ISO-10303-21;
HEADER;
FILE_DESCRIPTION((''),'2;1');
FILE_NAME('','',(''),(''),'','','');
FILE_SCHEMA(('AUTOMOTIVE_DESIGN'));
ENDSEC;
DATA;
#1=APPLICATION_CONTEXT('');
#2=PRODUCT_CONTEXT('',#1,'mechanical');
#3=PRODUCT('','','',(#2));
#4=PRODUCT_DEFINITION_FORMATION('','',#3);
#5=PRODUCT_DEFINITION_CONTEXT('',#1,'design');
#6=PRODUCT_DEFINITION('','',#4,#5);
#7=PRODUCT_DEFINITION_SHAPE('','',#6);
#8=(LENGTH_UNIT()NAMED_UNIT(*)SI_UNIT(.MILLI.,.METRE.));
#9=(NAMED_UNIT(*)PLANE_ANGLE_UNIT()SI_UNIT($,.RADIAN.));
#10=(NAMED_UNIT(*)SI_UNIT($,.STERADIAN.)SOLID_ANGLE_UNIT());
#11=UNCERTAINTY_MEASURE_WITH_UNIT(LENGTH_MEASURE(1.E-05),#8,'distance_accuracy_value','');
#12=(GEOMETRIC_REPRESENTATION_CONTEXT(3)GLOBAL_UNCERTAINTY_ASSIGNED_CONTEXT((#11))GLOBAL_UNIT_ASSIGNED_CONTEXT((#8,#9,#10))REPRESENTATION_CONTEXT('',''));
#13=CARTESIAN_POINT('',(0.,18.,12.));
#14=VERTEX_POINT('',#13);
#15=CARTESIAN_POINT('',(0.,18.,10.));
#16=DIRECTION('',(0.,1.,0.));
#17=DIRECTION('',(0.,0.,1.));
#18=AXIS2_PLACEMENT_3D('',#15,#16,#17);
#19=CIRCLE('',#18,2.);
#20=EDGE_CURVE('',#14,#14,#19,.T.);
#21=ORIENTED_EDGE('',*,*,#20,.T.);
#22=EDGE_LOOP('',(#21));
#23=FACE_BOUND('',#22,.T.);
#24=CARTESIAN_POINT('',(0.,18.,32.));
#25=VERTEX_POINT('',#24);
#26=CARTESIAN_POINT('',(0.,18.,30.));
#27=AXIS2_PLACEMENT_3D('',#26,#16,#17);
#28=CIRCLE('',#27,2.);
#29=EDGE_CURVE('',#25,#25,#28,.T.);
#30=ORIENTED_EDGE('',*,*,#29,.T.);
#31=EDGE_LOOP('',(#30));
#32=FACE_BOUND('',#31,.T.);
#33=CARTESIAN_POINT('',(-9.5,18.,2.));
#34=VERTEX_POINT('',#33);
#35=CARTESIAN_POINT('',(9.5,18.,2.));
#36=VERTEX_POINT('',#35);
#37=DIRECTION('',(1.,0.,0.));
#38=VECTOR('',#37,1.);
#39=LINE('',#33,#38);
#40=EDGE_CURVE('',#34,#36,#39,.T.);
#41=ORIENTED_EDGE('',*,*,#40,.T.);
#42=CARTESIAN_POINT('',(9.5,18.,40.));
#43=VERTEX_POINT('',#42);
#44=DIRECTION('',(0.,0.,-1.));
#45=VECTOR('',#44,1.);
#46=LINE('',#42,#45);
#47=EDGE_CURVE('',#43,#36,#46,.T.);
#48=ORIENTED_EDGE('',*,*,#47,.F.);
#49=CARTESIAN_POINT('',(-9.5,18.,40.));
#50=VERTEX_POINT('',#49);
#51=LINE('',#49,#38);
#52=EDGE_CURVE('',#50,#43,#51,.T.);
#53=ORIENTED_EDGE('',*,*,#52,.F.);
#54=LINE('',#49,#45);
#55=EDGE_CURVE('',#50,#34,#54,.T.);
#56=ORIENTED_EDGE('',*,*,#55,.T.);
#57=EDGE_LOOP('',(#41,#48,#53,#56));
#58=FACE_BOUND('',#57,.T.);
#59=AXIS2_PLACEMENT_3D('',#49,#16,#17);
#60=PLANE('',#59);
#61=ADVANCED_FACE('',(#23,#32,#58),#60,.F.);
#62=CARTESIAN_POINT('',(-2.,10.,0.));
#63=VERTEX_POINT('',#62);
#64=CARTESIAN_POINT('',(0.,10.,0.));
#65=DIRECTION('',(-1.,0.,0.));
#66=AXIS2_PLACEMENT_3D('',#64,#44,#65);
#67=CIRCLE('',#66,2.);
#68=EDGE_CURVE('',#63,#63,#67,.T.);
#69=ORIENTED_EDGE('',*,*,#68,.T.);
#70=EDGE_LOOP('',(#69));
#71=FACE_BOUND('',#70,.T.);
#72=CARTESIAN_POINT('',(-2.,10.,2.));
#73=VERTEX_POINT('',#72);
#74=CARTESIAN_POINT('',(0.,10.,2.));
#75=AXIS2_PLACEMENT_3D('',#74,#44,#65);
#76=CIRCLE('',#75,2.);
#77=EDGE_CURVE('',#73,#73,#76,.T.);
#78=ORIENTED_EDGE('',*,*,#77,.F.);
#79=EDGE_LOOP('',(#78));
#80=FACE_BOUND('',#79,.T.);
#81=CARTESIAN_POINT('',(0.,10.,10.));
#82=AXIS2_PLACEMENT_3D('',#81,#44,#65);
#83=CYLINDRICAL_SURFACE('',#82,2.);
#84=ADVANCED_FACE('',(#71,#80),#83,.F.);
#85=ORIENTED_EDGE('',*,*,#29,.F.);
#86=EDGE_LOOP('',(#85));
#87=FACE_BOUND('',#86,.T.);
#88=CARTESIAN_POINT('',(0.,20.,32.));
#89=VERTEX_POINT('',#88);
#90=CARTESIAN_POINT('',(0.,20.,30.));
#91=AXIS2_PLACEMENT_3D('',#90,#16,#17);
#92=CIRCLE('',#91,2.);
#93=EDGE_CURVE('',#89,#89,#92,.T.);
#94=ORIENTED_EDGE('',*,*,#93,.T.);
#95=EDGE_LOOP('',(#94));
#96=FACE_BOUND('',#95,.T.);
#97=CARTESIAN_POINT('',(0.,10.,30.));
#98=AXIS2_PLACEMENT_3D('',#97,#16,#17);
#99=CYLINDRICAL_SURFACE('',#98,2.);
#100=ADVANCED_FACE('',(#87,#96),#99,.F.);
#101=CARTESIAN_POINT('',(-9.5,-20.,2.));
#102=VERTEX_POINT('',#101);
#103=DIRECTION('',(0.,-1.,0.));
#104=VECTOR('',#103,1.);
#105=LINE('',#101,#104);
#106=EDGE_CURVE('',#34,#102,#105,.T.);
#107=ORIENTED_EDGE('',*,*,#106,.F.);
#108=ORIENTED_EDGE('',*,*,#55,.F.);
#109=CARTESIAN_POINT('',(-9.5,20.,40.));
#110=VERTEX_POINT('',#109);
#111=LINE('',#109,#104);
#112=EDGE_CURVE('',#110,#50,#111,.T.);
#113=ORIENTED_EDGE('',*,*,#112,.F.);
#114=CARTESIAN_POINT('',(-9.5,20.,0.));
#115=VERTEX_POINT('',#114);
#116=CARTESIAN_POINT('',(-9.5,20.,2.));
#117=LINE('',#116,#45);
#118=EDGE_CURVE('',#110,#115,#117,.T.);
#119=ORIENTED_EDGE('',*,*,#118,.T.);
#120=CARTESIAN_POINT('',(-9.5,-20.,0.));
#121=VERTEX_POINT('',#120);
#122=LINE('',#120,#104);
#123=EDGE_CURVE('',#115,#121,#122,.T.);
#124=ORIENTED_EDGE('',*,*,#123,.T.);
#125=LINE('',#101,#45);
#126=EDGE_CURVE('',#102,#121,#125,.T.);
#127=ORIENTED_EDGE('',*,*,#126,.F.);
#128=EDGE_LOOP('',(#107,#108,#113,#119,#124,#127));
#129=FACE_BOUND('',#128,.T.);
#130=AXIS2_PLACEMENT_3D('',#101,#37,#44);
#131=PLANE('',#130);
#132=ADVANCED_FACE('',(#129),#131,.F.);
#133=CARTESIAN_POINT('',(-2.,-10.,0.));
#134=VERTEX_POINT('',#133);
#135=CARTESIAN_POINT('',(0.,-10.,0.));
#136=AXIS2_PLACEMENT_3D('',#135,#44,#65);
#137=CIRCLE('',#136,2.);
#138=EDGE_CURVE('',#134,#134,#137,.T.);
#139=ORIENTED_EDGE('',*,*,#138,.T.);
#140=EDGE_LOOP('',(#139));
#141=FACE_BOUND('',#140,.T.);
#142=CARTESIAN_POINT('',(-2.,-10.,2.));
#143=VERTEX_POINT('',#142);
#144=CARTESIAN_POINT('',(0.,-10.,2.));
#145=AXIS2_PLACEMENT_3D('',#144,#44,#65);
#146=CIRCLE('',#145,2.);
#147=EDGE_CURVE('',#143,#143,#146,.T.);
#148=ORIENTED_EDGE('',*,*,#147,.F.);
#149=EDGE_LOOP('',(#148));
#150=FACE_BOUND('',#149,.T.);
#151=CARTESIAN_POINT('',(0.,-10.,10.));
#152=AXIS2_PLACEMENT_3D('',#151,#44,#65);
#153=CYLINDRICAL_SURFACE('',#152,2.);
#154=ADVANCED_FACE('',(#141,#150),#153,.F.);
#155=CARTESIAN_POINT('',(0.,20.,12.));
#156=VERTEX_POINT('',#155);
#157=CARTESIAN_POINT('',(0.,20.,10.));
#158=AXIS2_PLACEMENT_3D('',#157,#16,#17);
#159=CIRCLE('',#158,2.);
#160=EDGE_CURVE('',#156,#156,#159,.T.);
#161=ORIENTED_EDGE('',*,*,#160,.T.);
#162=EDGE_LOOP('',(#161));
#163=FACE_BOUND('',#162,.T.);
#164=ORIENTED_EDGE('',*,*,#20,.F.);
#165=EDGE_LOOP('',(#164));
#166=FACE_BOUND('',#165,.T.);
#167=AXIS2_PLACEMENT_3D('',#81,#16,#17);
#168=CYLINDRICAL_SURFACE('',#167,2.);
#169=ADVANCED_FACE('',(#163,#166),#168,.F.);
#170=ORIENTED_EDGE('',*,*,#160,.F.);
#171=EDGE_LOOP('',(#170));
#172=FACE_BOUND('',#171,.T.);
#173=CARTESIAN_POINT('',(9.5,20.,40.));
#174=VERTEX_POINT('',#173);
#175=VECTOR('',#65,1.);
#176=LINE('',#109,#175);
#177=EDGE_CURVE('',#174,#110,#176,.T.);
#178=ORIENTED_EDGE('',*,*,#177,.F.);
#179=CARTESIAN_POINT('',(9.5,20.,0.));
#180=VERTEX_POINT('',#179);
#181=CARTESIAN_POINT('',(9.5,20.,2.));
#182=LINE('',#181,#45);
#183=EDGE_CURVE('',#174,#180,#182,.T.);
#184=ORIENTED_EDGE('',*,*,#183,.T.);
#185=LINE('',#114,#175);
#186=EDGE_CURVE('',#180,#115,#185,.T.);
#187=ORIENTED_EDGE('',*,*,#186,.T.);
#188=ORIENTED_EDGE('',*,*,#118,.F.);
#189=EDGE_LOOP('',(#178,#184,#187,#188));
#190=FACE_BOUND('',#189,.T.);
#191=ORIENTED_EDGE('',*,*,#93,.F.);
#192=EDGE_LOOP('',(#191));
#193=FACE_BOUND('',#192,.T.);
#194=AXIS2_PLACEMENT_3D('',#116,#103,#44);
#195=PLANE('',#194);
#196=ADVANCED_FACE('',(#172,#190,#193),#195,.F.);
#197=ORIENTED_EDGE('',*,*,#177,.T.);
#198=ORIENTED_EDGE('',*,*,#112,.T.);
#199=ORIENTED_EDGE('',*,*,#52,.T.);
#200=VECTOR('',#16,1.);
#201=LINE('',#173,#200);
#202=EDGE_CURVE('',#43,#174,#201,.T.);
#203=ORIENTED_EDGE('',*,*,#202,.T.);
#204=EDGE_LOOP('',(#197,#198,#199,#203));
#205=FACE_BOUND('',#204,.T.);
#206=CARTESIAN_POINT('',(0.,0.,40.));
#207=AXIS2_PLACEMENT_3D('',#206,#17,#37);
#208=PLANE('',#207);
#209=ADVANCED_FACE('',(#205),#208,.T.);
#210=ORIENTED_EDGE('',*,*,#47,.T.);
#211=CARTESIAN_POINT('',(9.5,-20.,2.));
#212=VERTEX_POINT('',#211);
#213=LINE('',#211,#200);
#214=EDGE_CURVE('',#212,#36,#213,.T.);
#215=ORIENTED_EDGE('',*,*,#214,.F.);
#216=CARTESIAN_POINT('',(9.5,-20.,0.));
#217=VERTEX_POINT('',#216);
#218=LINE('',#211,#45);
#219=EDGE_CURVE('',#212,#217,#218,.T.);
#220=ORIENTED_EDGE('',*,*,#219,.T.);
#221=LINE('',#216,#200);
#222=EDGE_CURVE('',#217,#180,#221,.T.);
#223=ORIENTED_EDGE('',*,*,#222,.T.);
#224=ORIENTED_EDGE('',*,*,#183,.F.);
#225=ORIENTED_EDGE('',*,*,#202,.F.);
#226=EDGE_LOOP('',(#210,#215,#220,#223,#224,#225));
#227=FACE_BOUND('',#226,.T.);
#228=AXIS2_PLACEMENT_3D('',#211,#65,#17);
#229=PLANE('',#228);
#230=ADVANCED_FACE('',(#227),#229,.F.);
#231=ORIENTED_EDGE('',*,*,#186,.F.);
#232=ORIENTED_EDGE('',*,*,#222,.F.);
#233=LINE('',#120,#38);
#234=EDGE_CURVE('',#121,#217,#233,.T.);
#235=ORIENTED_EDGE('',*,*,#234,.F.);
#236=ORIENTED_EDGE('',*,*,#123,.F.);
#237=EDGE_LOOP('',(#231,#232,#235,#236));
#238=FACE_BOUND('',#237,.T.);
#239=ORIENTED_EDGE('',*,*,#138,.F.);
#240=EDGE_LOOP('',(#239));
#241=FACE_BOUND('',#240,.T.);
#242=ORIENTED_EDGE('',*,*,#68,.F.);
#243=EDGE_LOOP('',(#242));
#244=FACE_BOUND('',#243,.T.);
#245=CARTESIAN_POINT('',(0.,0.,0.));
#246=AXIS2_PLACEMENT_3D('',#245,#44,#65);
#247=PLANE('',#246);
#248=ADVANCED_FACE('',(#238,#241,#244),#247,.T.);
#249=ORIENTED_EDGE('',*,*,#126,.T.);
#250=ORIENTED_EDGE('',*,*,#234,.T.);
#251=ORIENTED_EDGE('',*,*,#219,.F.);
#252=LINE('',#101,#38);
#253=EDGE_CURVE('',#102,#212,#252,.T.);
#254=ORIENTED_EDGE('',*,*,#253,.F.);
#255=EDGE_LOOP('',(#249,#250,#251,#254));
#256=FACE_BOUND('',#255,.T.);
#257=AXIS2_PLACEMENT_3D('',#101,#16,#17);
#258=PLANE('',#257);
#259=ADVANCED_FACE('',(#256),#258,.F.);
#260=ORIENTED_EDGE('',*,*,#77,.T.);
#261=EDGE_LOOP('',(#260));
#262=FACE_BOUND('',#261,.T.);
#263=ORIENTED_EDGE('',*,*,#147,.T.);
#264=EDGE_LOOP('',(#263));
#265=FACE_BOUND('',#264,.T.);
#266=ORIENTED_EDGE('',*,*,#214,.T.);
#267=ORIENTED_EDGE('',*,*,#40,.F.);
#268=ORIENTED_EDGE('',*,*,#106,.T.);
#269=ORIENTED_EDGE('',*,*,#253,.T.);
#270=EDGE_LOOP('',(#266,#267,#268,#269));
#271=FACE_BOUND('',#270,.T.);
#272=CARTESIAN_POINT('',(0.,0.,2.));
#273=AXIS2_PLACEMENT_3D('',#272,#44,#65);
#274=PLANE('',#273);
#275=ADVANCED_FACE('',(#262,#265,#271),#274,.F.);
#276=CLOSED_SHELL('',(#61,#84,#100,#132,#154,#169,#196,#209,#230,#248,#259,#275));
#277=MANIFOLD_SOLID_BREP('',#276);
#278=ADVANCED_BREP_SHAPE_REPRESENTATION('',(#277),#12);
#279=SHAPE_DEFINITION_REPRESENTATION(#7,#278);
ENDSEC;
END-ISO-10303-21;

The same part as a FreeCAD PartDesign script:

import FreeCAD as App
import Part
import Sketcher
Q = App.Units.Quantity

doc = App.newDocument("Part")
body = doc.addObject("PartDesign::Body", "Body")

sketch1 = doc.addObject("Sketcher::SketchObject", "Sketch")
body.addObject(sketch1)
sketch1.AttachmentSupport = (doc.XY_Plane, [""])
sketch1.MapMode = "FlatFace"
sketch1.addGeometry(Part.LineSegment(App.Vector(-10, 20, 0), App.Vector(-10, -20, 0)), False)
sketch1.addGeometry(Part.LineSegment(App.Vector(-10, -20, 0), App.Vector(10, -20, 0)), False)
sketch1.addGeometry(Part.LineSegment(App.Vector(10, -20, 0), App.Vector(10, 20, 0)), False)
sketch1.addGeometry(Part.LineSegment(App.Vector(10, 20, 0), App.Vector(-10, 20, 0)), False)
sketch1.addConstraint(Sketcher.Constraint("Coincident", 0, 2, 1, 1))
sketch1.addConstraint(Sketcher.Constraint("Coincident", 1, 2, 2, 1))
sketch1.addConstraint(Sketcher.Constraint("Coincident", 2, 2, 3, 1))
sketch1.addConstraint(Sketcher.Constraint("Coincident", 3, 2, 0, 1))
sketch1.addConstraint(Sketcher.Constraint("Vertical", 0))
sketch1.addConstraint(Sketcher.Constraint("Horizontal", 1))
sketch1.addConstraint(Sketcher.Constraint("Vertical", 2))
sketch1.addConstraint(Sketcher.Constraint("Horizontal", 3))
sketch1.addConstraint(Sketcher.Constraint("Symmetric", 0, 2, 2, 2, -1, 1))
sketch1.addConstraint(Sketcher.Constraint("DistanceX", 1, 1, 1, 2, Q("19 mm")))
sketch1.addConstraint(Sketcher.Constraint("DistanceY", 0, 2, 0, 1, Q("40 mm")))
pad1 = doc.addObject("PartDesign::Pad", "Pad")
body.addObject(pad1)
pad1.Profile = sketch1
pad1.Length = 2

sketch2 = doc.addObject("Sketcher::SketchObject", "Sketch001")
body.addObject(sketch2)
sketch2.AttachmentSupport = (doc.XY_Plane, [""])
sketch2.MapMode = "FlatFace"
sketch2.AttachmentOffset = App.Placement(App.Vector(0, 0, 2), App.Rotation())
sketch2.addGeometry(Part.LineSegment(App.Vector(-9.5, 20, 0), App.Vector(-9.5, 18, 0)), False)
sketch2.addGeometry(Part.LineSegment(App.Vector(-9.5, 18, 0), App.Vector(9.5, 18, 0)), False)
sketch2.addGeometry(Part.LineSegment(App.Vector(9.5, 18, 0), App.Vector(9.5, 20, 0)), False)
sketch2.addGeometry(Part.LineSegment(App.Vector(9.5, 20, 0), App.Vector(-9.5, 20, 0)), False)
sketch2.addConstraint(Sketcher.Constraint("Coincident", 0, 2, 1, 1))
sketch2.addConstraint(Sketcher.Constraint("Coincident", 1, 2, 2, 1))
sketch2.addConstraint(Sketcher.Constraint("Coincident", 2, 2, 3, 1))
sketch2.addConstraint(Sketcher.Constraint("Coincident", 3, 2, 0, 1))
sketch2.addConstraint(Sketcher.Constraint("Vertical", 0))
sketch2.addConstraint(Sketcher.Constraint("Horizontal", 1))
sketch2.addConstraint(Sketcher.Constraint("Vertical", 2))
sketch2.addConstraint(Sketcher.Constraint("Horizontal", 3))
sketch2.addConstraint(Sketcher.Constraint("DistanceX", 1, 1, 1, 2, Q("19 mm")))
sketch2.addConstraint(Sketcher.Constraint("DistanceY", 0, 2, 0, 1, Q("2 mm")))
sketch2.addConstraint(Sketcher.Constraint("DistanceY", -1, 1, 0, 2, Q("18 mm")))
sketch2.addConstraint(Sketcher.Constraint("DistanceX", 0, 2, -1, 1, Q("9.5 mm")))
pad2 = doc.addObject("PartDesign::Pad", "Pad001")
body.addObject(pad2)
pad2.Profile = sketch2
pad2.Length = 38

sketch3 = doc.addObject("Sketcher::SketchObject", "Sketch002")
body.addObject(sketch3)
sketch3.AttachmentSupport = (doc.XY_Plane, [""])
sketch3.MapMode = "FlatFace"
sketch3.addGeometry(Part.Circle(App.Vector(0, 10, 0), App.Vector(0, 0, 1), 2), False)
sketch3.addGeometry(Part.Circle(App.Vector(0, -10, 0), App.Vector(0, 0, 1), 2), False)
sketch3.addConstraint(Sketcher.Constraint("Equal", 0, 1))
sketch3.addConstraint(Sketcher.Constraint("Symmetric", 0, 3, 1, 3, -1, 1))
sketch3.addConstraint(Sketcher.Constraint("PointOnObject", 0, 3, -2))
sketch3.addConstraint(Sketcher.Constraint("Diameter", 0, Q("4 mm")))
sketch3.addConstraint(Sketcher.Constraint("DistanceY", -1, 1, 0, 3, Q("10 mm")))
pocket1 = doc.addObject("PartDesign::Pocket", "Pocket")
body.addObject(pocket1)
pocket1.Profile = sketch3
pocket1.Length = 10
pocket1.Reversed = True

sketch4 = doc.addObject("Sketcher::SketchObject", "Sketch003")
body.addObject(sketch4)
sketch4.AttachmentSupport = (doc.XZ_Plane, [""])
sketch4.MapMode = "FlatFace"
sketch4.AttachmentOffset = App.Placement(App.Vector(0, 0, -20), App.Rotation())
sketch4.addGeometry(Part.Circle(App.Vector(0, 10, 0), App.Vector(0, 0, 1), 2), False)
sketch4.addGeometry(Part.Circle(App.Vector(0, 30, 0), App.Vector(0, 0, 1), 2), False)
sketch4.addConstraint(Sketcher.Constraint("Equal", 0, 1))
sketch4.addConstraint(Sketcher.Constraint("PointOnObject", 0, 3, -2))
sketch4.addConstraint(Sketcher.Constraint("PointOnObject", 1, 3, -2))
sketch4.addConstraint(Sketcher.Constraint("Diameter", 0, Q("4 mm")))
sketch4.addConstraint(Sketcher.Constraint("DistanceY", -1, 1, 0, 3, Q("10 mm")))
sketch4.addConstraint(Sketcher.Constraint("DistanceY", -1, 1, 1, 3, Q("30 mm")))
pocket2 = doc.addObject("PartDesign::Pocket", "Pocket001")
body.addObject(pocket2)
pocket2.Profile = sketch4
pocket2.Length = 10
pocket2.Reversed = True

doc.recompute()
